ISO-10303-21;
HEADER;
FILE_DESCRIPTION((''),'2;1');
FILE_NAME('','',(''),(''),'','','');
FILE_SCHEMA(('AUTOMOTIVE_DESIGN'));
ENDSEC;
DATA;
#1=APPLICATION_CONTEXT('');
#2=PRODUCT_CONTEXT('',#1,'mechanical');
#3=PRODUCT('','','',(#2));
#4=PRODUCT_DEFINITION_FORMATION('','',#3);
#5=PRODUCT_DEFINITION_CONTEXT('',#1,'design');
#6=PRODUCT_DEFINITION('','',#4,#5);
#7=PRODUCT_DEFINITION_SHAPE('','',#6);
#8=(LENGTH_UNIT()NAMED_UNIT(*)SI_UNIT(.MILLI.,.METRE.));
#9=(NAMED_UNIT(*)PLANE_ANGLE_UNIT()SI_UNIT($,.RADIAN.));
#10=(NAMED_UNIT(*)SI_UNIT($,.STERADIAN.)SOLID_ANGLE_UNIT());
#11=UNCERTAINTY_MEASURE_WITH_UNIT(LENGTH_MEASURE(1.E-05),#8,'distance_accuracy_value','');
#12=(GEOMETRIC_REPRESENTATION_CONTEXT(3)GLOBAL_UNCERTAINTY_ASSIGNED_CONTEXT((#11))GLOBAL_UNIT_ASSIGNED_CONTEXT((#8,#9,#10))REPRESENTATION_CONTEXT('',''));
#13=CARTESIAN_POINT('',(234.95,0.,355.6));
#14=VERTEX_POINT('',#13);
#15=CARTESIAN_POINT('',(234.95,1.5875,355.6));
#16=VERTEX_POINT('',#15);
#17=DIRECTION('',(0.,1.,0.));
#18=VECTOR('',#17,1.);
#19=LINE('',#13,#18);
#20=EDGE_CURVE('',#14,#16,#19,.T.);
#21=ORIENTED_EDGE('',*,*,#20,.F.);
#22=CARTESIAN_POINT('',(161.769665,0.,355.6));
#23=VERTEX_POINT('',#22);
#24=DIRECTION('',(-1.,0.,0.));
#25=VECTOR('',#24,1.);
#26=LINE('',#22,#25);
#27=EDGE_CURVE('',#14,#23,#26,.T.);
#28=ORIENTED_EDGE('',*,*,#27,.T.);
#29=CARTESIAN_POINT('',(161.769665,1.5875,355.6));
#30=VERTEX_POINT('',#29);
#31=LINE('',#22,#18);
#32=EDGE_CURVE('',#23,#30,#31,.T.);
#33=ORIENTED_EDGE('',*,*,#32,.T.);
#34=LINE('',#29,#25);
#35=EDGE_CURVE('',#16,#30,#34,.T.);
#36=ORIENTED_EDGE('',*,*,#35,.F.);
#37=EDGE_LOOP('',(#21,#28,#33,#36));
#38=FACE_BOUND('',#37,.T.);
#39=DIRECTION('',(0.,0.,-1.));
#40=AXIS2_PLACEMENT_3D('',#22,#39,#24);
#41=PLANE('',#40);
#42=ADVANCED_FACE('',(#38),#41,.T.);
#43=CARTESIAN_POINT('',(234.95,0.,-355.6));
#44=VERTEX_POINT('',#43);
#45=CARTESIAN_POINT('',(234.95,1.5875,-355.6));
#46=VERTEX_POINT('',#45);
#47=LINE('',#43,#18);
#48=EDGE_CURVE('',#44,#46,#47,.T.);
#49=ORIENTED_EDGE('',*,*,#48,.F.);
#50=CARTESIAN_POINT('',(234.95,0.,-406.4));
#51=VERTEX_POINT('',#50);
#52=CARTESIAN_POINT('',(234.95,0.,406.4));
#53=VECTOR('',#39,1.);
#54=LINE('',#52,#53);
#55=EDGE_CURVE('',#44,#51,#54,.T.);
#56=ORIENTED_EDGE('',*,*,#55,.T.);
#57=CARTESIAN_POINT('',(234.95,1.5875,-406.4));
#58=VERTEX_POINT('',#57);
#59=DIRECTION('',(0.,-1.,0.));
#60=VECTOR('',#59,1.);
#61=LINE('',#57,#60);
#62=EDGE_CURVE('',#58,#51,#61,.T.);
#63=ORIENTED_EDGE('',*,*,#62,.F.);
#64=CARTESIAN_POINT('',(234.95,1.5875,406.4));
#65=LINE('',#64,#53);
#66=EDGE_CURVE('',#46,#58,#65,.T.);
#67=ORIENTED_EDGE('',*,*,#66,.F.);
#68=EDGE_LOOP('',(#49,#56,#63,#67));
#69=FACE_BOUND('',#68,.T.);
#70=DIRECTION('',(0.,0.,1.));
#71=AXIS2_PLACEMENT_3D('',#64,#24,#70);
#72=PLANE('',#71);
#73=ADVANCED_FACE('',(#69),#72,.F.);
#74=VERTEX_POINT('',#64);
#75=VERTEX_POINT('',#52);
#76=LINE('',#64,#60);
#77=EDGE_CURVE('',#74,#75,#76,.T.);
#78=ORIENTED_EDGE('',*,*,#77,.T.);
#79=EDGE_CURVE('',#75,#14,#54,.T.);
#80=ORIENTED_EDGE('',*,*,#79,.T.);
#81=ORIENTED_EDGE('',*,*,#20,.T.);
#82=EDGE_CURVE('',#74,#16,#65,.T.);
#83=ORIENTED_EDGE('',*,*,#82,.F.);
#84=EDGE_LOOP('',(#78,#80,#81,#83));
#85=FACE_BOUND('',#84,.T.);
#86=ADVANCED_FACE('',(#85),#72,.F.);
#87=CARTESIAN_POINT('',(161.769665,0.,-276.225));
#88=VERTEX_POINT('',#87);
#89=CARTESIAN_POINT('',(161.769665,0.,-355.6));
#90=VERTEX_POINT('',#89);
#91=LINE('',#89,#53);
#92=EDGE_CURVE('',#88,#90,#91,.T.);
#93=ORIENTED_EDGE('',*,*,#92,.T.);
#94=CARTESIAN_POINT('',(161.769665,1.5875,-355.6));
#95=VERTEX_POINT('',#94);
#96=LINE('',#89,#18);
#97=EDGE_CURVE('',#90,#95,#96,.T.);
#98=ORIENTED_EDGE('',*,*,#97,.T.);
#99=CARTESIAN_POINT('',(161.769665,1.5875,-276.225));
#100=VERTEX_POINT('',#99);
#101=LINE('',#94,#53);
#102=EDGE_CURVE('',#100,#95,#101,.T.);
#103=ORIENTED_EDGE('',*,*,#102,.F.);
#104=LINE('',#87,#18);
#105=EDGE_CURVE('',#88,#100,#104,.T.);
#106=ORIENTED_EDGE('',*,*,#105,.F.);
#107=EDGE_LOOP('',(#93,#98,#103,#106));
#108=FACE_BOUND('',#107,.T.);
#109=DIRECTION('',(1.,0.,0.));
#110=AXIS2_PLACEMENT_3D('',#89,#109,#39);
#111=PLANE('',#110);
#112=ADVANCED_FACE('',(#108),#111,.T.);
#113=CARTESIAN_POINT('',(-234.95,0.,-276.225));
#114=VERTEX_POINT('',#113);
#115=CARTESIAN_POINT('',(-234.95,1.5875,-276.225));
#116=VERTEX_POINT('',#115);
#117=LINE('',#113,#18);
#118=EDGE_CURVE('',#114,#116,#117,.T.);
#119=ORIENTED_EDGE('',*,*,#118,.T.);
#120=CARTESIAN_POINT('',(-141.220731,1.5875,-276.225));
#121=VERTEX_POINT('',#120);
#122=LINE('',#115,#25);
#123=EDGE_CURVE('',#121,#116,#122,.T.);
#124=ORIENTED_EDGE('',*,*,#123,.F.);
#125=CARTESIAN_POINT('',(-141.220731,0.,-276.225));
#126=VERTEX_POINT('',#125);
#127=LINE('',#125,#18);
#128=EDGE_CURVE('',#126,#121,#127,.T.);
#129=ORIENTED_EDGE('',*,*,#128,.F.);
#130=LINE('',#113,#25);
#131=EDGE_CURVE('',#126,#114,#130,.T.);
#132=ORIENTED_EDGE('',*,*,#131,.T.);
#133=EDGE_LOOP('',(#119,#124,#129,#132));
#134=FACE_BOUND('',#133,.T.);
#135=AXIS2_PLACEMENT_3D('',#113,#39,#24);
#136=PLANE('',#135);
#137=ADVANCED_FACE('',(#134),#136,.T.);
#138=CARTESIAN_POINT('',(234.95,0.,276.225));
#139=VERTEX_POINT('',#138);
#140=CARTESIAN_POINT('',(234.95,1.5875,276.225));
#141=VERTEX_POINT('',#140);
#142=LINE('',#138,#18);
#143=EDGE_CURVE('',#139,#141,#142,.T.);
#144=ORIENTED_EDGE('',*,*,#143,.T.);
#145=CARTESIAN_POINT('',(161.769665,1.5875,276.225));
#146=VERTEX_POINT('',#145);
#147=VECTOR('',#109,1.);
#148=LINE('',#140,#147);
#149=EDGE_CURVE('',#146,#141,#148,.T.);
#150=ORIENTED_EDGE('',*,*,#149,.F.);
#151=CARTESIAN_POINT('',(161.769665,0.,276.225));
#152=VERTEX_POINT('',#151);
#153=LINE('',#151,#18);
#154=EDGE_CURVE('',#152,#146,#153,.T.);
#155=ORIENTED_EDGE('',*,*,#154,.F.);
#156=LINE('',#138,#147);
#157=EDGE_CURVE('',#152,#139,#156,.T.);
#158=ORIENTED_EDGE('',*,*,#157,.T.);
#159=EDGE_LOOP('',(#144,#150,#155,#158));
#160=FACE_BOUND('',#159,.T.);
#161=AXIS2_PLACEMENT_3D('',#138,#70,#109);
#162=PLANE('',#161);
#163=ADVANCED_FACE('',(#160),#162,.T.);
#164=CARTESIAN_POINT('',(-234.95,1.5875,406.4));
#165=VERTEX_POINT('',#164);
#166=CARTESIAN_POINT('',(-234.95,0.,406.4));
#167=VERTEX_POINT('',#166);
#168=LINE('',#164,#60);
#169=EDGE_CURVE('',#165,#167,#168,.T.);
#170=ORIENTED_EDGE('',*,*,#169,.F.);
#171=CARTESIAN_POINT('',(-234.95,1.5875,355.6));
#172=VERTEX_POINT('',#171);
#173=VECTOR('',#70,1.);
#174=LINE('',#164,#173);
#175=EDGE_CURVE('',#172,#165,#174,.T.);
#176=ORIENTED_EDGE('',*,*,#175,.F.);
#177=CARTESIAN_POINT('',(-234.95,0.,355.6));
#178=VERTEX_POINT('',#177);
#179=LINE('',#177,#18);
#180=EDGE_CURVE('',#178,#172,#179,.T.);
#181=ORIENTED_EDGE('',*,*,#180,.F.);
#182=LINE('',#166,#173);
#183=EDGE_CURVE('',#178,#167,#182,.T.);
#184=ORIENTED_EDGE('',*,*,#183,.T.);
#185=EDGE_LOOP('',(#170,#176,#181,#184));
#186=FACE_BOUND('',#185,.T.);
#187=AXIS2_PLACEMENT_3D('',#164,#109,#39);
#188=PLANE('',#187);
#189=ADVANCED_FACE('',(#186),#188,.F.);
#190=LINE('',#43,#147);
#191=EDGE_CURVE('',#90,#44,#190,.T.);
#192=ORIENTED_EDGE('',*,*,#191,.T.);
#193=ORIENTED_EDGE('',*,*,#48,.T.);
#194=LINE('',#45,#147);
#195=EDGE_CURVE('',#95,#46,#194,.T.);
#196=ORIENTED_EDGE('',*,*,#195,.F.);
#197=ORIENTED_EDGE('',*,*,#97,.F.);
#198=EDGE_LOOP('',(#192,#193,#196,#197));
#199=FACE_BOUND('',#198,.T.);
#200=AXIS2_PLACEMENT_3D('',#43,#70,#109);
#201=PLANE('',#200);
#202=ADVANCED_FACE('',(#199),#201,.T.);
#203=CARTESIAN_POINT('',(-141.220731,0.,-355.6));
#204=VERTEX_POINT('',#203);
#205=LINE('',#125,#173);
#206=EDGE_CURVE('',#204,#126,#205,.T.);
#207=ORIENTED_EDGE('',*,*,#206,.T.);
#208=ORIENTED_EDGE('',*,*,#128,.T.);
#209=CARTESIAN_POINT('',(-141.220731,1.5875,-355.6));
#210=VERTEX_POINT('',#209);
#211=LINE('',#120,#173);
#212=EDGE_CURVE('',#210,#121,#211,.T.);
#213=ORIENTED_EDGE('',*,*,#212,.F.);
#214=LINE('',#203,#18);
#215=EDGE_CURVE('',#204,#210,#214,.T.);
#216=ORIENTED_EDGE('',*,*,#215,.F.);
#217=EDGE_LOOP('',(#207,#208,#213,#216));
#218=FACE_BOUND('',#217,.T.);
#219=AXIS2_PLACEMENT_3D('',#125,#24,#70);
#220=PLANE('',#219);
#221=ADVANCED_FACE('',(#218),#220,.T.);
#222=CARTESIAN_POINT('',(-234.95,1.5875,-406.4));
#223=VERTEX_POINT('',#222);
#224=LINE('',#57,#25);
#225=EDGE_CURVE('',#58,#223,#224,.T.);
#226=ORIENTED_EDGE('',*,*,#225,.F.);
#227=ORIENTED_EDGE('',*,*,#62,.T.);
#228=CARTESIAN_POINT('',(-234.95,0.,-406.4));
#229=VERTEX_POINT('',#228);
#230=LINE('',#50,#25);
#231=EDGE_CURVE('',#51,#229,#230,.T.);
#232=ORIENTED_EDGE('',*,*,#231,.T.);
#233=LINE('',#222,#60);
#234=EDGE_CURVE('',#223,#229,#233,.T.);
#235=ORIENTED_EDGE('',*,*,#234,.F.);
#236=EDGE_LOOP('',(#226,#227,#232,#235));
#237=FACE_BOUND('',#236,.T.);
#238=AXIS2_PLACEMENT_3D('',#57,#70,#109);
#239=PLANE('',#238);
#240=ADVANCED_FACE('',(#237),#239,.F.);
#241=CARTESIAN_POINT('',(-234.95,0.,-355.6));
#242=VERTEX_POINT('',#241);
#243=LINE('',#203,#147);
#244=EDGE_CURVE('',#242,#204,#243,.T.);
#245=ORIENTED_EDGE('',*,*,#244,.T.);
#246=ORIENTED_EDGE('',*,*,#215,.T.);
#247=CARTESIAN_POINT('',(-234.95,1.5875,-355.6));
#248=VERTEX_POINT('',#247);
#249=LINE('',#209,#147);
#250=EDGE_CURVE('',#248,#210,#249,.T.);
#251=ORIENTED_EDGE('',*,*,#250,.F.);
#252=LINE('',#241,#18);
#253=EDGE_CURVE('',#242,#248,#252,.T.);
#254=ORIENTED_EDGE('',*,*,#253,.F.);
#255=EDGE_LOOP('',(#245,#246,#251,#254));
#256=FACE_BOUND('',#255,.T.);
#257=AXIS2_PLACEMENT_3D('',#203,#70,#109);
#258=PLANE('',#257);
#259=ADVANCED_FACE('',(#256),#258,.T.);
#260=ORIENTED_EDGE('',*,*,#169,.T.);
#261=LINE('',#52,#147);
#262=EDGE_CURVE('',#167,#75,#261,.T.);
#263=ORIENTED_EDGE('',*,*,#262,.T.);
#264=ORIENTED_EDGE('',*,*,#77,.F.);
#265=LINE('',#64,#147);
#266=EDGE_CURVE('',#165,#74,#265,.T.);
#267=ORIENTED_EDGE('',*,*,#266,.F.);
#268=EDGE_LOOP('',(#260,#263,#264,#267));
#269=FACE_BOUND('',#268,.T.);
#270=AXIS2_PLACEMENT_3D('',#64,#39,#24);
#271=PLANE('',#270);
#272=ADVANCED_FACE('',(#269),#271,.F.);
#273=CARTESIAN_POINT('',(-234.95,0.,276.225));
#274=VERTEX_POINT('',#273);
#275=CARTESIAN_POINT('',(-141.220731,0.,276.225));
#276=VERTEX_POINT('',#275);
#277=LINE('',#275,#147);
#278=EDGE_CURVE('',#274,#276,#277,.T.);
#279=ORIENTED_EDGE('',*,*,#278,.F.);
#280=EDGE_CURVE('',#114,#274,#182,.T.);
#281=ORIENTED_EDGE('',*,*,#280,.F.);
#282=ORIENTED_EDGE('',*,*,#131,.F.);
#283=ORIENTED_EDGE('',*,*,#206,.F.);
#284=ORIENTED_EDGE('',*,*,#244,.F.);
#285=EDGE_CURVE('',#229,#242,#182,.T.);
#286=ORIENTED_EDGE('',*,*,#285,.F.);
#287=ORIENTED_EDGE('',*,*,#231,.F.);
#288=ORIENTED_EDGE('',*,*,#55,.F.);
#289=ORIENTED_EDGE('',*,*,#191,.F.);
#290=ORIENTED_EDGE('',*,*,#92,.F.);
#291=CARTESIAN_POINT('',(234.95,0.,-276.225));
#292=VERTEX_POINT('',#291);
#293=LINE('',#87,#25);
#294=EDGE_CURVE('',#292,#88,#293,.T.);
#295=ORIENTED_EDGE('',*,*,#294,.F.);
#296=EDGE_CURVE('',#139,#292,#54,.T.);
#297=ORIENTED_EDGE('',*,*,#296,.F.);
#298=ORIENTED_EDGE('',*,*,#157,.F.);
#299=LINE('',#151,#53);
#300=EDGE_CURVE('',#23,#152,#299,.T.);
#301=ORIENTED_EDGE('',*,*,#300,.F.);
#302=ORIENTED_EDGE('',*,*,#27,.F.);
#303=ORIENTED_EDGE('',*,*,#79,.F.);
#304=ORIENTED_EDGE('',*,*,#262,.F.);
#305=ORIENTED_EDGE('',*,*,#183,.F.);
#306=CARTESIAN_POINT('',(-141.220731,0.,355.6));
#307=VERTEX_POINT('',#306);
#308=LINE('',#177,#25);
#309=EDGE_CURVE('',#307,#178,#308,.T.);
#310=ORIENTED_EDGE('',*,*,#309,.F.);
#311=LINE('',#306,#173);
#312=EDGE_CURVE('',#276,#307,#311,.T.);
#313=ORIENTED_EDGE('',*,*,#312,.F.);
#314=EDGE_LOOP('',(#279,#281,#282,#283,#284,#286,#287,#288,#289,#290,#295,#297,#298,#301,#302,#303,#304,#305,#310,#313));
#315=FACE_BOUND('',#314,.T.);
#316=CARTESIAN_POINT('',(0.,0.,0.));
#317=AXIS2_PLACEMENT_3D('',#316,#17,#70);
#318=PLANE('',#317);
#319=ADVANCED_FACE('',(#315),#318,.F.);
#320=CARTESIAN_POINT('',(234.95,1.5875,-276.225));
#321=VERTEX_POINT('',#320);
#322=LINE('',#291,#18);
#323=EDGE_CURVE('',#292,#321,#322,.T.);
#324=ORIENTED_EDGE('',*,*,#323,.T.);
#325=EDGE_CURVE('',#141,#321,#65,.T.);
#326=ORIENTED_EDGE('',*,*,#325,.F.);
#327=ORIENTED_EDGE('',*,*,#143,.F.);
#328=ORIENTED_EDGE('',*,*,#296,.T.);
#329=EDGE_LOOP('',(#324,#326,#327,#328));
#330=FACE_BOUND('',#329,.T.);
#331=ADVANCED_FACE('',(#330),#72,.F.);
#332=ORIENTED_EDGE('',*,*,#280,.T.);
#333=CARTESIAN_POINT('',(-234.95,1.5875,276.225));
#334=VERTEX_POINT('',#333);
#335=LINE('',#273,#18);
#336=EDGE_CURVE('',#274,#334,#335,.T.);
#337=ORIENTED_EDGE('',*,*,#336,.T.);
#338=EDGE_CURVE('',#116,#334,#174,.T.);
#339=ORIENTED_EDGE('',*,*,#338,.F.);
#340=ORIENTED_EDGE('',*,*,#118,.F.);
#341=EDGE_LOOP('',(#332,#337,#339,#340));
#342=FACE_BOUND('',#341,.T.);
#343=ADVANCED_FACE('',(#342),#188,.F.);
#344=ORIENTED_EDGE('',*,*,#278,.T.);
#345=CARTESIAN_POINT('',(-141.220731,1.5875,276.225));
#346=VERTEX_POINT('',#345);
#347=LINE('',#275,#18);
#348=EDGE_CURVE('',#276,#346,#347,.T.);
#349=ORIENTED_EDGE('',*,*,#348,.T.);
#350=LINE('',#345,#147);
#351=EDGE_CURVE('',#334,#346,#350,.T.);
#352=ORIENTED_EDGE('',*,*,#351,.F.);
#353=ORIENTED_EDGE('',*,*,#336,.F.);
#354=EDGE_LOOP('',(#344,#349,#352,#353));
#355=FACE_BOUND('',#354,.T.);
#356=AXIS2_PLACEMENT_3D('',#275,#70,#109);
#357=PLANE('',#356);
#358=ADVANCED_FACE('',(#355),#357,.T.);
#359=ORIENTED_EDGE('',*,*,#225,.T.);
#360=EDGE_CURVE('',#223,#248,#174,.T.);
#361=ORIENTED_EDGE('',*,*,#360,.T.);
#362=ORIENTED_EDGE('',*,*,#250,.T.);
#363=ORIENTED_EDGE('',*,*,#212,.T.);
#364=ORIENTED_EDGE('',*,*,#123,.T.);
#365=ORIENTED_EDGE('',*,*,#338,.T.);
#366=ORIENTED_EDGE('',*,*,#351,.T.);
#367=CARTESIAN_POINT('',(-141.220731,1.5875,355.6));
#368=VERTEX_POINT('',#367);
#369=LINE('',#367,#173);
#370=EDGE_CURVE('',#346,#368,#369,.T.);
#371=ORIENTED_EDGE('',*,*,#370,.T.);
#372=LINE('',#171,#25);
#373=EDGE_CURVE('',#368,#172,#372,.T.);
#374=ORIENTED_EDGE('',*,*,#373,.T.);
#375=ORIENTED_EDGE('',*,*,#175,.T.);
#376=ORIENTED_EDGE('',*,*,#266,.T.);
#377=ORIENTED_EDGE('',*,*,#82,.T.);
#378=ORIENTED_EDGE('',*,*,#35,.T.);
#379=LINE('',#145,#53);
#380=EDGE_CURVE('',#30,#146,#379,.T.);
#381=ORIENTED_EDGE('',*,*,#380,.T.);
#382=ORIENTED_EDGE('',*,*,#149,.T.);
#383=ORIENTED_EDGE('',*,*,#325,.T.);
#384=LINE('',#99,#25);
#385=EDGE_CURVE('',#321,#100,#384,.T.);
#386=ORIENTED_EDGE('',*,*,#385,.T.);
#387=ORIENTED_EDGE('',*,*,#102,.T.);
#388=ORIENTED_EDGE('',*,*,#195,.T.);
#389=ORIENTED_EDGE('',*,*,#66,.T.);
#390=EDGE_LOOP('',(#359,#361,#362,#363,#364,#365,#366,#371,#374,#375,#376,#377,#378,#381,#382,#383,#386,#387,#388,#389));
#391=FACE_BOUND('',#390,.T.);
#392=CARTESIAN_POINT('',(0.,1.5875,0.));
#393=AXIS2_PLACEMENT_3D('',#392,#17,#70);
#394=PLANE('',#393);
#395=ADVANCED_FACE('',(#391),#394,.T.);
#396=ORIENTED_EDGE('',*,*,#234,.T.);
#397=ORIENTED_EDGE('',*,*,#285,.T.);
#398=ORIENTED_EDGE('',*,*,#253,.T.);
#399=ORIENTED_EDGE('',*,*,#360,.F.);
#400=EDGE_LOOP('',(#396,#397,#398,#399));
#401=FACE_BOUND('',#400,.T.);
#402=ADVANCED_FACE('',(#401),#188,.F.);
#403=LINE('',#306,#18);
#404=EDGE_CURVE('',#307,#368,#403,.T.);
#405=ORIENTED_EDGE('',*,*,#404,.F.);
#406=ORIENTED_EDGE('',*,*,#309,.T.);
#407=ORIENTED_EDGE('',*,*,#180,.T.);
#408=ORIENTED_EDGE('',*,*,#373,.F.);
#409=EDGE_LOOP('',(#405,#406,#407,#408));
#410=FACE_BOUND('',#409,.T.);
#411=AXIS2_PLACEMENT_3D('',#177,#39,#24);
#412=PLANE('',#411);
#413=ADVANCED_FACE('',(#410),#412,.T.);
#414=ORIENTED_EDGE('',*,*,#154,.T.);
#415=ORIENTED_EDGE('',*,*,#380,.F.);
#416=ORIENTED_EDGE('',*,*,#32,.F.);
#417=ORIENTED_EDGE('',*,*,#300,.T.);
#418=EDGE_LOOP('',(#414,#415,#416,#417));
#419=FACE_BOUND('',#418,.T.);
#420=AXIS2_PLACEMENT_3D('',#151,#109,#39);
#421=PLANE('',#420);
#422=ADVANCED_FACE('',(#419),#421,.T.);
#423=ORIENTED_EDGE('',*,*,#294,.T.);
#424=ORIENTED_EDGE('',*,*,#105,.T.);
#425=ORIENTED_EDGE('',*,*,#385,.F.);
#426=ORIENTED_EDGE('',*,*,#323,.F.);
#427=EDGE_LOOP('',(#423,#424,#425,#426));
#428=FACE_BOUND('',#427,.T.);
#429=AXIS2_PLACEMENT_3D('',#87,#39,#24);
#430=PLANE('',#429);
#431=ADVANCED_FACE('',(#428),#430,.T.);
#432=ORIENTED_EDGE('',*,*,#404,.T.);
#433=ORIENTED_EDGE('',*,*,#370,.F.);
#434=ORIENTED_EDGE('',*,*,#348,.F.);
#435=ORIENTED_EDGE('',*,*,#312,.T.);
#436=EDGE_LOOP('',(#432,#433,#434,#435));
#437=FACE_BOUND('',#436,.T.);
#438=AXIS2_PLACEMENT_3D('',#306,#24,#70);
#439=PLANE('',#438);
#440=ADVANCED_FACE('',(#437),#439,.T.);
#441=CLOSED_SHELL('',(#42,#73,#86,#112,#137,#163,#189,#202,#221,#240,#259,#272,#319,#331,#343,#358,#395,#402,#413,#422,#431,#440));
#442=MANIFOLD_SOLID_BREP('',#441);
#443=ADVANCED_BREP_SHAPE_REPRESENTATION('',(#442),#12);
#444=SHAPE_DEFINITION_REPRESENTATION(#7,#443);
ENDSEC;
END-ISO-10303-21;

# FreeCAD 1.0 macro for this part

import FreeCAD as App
import Part
import Sketcher
from FreeCAD import Vector
Q = App.Units.Quantity


def add_polygon(sketch, points):
    """Adds a closed chain of lines whose ends are joined by coincident constraints."""
    first, n = sketch.GeometryCount, len(points)
    for a, b in zip(points, points[1:] + points[:1]):
        sketch.addGeometry(Part.LineSegment(App.Vector(*a, 0), App.Vector(*b, 0)), False)
    for i in range(n):
        sketch.addConstraint(Sketcher.Constraint("Coincident", first + i, 2, first + (i + 1) % n, 1))

doc = App.newDocument("Part")
params = doc.addObject("Spreadsheet::Sheet", "Params")
for row, (alias, value) in enumerate([
    ("sketch1_height", "32 in"),
    ("sketch1_width", "18.5 in"),
    ("pad1_length", "0.0625 in"),
    ("sketch2_height", "2 in"),
    ("sketch2_width", "18.5 in"),
    ("sketch2_height2", "21.75 in"),
    ("pocket1_length", "0.0625 in"),
], start=1):
    params.set(f"A{row}", alias)
    params.set(f"B{row}", "=" + value)
    params.setAlias(f"B{row}", alias)

body = doc.addObject("PartDesign::Body", "Body")

# Sketch on XZ plane
sketch1 = body.newObject("Sketcher::SketchObject", "Sketch")
sketch1.AttachmentSupport = (doc.getObject("XZ_Plane"), [""])
sketch1.MapMode = "FlatFace"
add_polygon(sketch1, [(-235, -406), (-235, 406), (235, 406), (235, -406)])  # lines 0-3
sketch1.addConstraint(Sketcher.Constraint("Vertical", 0))
sketch1.addConstraint(Sketcher.Constraint("Horizontal", 1))
sketch1.addConstraint(Sketcher.Constraint("Vertical", 2))
sketch1.addConstraint(Sketcher.Constraint("Horizontal", 3))
sketch1.addConstraint(Sketcher.Constraint("Symmetric", 0, 2, 2, 2, -1, 1))
sketch1.addConstraint(Sketcher.Constraint("DistanceY", 0, 1, 0, 2, Q("32 in")))
sketch1.addConstraint(Sketcher.Constraint("DistanceX", 1, 1, 1, 2, Q("18.5 in")))
sketch1.setExpression("Constraints[9]", "Params.sketch1_height")
sketch1.setExpression("Constraints[10]", "Params.sketch1_width")
pad1 = body.newObject("PartDesign::Pad", "Pad")
pad1.Profile = sketch1
pad1.setExpression("Length", "Params.pad1_length")
pad1.Reversed = True

# Sketch on XZ plane
sketch2 = body.newObject("Sketcher::SketchObject", "Sketch001")
sketch2.AttachmentSupport = (doc.getObject("XZ_Plane"), [""])
sketch2.MapMode = "FlatFace"
sketch2.AttachmentOffset = App.Placement(Vector(0, 0, -0.0625 * 25.4), App.Rotation())
add_polygon(sketch2, [(-330, -501), (-330, 501), (330, 501), (330, -501)])  # lines 0-3
add_polygon(sketch2, [(-141, -356), (-235, -356), (-235, -406), (235, -406), (235, -356), (162, -356), (162, -276), (235, -276), (235, 276), (162, 276), (162, 356), (235, 356), (235, 406), (-235, 406), (-235, 356), (-141, 356), (-141, 276), (-235, 276), (-235, -276), (-141, -276)])  # lines 4-23
sketch2.addConstraint(Sketcher.Constraint("Vertical", 0))
sketch2.addConstraint(Sketcher.Constraint("Horizontal", 1))
sketch2.addConstraint(Sketcher.Constraint("Vertical", 2))
sketch2.addConstraint(Sketcher.Constraint("Horizontal", 3))
sketch2.addConstraint(Sketcher.Constraint("Horizontal", 4))
sketch2.addConstraint(Sketcher.Constraint("Vertical", 5))
sketch2.addConstraint(Sketcher.Constraint("Horizontal", 6))
sketch2.addConstraint(Sketcher.Constraint("Vertical", 7))
sketch2.addConstraint(Sketcher.Constraint("Horizontal", 8))
sketch2.addConstraint(Sketcher.Constraint("Vertical", 9))
sketch2.addConstraint(Sketcher.Constraint("Horizontal", 10))
sketch2.addConstraint(Sketcher.Constraint("Vertical", 11))
sketch2.addConstraint(Sketcher.Constraint("Horizontal", 12))
sketch2.addConstraint(Sketcher.Constraint("Vertical", 13))
sketch2.addConstraint(Sketcher.Constraint("Horizontal", 14))
sketch2.addConstraint(Sketcher.Constraint("Vertical", 15))
sketch2.addConstraint(Sketcher.Constraint("Horizontal", 16))
sketch2.addConstraint(Sketcher.Constraint("Vertical", 17))
sketch2.addConstraint(Sketcher.Constraint("Horizontal", 18))
sketch2.addConstraint(Sketcher.Constraint("Vertical", 19))
sketch2.addConstraint(Sketcher.Constraint("Horizontal", 20))
sketch2.addConstraint(Sketcher.Constraint("Vertical", 21))
sketch2.addConstraint(Sketcher.Constraint("Horizontal", 22))
sketch2.addConstraint(Sketcher.Constraint("Vertical", 23))
sketch2.addConstraint(Sketcher.Constraint("Symmetric", 0, 2, 2, 2, -1, 1))
sketch2.addConstraint(Sketcher.Constraint("Symmetric", 4, 2, 14, 2, -1, 1))
sketch2.addConstraint(Sketcher.Constraint("Symmetric", 6, 2, 16, 2, -1, 1))
sketch2.addConstraint(Sketcher.Constraint("Symmetric", 10, 2, 20, 2, -1, 1))
sketch2.addConstraint(Sketcher.Constraint("Symmetric", 4, 2, 7, 2, -2))
sketch2.addConstraint(Sketcher.Constraint("Symmetric", 9, 2, 12, 2, -1))
sketch2.addConstraint(Sketcher.Constraint("Symmetric", 19, 2, 22, 2, -1))
sketch2.addConstraint(Sketcher.Constraint("Horizontal", 14, 2, 17, 2))
sketch2.addConstraint(Sketcher.Constraint("Vertical", 7, 2, 10, 2))
sketch2.addConstraint(Sketcher.Constraint("DistanceY", 5, 2, 5, 1, Q("2 in")))
sketch2.addConstraint(Sketcher.Constraint("DistanceX", 6, 1, 6, 2, Q("18.5 in")))
sketch2.addConstraint(Sketcher.Constraint("DistanceY", 4, 2, -1, 1, Q("14 in")))
sketch2.addConstraint(Sketcher.Constraint("DistanceY", 11, 1, 11, 2, Q("21.75 in")))
sketch2.addConstraint(Sketcher.Constraint("DistanceX", 1, 1, 1, 2, Q("659.672 mm")))
sketch2.addConstraint(Sketcher.Constraint("DistanceY", 0, 1, 0, 2, Q("1002.572 mm")))
sketch2.addConstraint(Sketcher.Constraint("DistanceX", 4, 2, 4, 1, Q("93.729269 mm")))
sketch2.addConstraint(Sketcher.Constraint("DistanceX", 8, 2, 8, 1, Q("73.180335 mm")))
sketch2.setExpression("Constraints[57]", "Params.sketch2_height")
sketch2.setExpression("Constraints[58]", "Params.sketch2_width")
sketch2.setExpression("Constraints[60]", "Params.sketch2_height2")
pocket1 = body.newObject("PartDesign::Pocket", "Pocket")
pocket1.Profile = sketch2
pocket1.setExpression("Length", "Params.pocket1_length")
pocket1.Reversed = True

doc.recompute()
